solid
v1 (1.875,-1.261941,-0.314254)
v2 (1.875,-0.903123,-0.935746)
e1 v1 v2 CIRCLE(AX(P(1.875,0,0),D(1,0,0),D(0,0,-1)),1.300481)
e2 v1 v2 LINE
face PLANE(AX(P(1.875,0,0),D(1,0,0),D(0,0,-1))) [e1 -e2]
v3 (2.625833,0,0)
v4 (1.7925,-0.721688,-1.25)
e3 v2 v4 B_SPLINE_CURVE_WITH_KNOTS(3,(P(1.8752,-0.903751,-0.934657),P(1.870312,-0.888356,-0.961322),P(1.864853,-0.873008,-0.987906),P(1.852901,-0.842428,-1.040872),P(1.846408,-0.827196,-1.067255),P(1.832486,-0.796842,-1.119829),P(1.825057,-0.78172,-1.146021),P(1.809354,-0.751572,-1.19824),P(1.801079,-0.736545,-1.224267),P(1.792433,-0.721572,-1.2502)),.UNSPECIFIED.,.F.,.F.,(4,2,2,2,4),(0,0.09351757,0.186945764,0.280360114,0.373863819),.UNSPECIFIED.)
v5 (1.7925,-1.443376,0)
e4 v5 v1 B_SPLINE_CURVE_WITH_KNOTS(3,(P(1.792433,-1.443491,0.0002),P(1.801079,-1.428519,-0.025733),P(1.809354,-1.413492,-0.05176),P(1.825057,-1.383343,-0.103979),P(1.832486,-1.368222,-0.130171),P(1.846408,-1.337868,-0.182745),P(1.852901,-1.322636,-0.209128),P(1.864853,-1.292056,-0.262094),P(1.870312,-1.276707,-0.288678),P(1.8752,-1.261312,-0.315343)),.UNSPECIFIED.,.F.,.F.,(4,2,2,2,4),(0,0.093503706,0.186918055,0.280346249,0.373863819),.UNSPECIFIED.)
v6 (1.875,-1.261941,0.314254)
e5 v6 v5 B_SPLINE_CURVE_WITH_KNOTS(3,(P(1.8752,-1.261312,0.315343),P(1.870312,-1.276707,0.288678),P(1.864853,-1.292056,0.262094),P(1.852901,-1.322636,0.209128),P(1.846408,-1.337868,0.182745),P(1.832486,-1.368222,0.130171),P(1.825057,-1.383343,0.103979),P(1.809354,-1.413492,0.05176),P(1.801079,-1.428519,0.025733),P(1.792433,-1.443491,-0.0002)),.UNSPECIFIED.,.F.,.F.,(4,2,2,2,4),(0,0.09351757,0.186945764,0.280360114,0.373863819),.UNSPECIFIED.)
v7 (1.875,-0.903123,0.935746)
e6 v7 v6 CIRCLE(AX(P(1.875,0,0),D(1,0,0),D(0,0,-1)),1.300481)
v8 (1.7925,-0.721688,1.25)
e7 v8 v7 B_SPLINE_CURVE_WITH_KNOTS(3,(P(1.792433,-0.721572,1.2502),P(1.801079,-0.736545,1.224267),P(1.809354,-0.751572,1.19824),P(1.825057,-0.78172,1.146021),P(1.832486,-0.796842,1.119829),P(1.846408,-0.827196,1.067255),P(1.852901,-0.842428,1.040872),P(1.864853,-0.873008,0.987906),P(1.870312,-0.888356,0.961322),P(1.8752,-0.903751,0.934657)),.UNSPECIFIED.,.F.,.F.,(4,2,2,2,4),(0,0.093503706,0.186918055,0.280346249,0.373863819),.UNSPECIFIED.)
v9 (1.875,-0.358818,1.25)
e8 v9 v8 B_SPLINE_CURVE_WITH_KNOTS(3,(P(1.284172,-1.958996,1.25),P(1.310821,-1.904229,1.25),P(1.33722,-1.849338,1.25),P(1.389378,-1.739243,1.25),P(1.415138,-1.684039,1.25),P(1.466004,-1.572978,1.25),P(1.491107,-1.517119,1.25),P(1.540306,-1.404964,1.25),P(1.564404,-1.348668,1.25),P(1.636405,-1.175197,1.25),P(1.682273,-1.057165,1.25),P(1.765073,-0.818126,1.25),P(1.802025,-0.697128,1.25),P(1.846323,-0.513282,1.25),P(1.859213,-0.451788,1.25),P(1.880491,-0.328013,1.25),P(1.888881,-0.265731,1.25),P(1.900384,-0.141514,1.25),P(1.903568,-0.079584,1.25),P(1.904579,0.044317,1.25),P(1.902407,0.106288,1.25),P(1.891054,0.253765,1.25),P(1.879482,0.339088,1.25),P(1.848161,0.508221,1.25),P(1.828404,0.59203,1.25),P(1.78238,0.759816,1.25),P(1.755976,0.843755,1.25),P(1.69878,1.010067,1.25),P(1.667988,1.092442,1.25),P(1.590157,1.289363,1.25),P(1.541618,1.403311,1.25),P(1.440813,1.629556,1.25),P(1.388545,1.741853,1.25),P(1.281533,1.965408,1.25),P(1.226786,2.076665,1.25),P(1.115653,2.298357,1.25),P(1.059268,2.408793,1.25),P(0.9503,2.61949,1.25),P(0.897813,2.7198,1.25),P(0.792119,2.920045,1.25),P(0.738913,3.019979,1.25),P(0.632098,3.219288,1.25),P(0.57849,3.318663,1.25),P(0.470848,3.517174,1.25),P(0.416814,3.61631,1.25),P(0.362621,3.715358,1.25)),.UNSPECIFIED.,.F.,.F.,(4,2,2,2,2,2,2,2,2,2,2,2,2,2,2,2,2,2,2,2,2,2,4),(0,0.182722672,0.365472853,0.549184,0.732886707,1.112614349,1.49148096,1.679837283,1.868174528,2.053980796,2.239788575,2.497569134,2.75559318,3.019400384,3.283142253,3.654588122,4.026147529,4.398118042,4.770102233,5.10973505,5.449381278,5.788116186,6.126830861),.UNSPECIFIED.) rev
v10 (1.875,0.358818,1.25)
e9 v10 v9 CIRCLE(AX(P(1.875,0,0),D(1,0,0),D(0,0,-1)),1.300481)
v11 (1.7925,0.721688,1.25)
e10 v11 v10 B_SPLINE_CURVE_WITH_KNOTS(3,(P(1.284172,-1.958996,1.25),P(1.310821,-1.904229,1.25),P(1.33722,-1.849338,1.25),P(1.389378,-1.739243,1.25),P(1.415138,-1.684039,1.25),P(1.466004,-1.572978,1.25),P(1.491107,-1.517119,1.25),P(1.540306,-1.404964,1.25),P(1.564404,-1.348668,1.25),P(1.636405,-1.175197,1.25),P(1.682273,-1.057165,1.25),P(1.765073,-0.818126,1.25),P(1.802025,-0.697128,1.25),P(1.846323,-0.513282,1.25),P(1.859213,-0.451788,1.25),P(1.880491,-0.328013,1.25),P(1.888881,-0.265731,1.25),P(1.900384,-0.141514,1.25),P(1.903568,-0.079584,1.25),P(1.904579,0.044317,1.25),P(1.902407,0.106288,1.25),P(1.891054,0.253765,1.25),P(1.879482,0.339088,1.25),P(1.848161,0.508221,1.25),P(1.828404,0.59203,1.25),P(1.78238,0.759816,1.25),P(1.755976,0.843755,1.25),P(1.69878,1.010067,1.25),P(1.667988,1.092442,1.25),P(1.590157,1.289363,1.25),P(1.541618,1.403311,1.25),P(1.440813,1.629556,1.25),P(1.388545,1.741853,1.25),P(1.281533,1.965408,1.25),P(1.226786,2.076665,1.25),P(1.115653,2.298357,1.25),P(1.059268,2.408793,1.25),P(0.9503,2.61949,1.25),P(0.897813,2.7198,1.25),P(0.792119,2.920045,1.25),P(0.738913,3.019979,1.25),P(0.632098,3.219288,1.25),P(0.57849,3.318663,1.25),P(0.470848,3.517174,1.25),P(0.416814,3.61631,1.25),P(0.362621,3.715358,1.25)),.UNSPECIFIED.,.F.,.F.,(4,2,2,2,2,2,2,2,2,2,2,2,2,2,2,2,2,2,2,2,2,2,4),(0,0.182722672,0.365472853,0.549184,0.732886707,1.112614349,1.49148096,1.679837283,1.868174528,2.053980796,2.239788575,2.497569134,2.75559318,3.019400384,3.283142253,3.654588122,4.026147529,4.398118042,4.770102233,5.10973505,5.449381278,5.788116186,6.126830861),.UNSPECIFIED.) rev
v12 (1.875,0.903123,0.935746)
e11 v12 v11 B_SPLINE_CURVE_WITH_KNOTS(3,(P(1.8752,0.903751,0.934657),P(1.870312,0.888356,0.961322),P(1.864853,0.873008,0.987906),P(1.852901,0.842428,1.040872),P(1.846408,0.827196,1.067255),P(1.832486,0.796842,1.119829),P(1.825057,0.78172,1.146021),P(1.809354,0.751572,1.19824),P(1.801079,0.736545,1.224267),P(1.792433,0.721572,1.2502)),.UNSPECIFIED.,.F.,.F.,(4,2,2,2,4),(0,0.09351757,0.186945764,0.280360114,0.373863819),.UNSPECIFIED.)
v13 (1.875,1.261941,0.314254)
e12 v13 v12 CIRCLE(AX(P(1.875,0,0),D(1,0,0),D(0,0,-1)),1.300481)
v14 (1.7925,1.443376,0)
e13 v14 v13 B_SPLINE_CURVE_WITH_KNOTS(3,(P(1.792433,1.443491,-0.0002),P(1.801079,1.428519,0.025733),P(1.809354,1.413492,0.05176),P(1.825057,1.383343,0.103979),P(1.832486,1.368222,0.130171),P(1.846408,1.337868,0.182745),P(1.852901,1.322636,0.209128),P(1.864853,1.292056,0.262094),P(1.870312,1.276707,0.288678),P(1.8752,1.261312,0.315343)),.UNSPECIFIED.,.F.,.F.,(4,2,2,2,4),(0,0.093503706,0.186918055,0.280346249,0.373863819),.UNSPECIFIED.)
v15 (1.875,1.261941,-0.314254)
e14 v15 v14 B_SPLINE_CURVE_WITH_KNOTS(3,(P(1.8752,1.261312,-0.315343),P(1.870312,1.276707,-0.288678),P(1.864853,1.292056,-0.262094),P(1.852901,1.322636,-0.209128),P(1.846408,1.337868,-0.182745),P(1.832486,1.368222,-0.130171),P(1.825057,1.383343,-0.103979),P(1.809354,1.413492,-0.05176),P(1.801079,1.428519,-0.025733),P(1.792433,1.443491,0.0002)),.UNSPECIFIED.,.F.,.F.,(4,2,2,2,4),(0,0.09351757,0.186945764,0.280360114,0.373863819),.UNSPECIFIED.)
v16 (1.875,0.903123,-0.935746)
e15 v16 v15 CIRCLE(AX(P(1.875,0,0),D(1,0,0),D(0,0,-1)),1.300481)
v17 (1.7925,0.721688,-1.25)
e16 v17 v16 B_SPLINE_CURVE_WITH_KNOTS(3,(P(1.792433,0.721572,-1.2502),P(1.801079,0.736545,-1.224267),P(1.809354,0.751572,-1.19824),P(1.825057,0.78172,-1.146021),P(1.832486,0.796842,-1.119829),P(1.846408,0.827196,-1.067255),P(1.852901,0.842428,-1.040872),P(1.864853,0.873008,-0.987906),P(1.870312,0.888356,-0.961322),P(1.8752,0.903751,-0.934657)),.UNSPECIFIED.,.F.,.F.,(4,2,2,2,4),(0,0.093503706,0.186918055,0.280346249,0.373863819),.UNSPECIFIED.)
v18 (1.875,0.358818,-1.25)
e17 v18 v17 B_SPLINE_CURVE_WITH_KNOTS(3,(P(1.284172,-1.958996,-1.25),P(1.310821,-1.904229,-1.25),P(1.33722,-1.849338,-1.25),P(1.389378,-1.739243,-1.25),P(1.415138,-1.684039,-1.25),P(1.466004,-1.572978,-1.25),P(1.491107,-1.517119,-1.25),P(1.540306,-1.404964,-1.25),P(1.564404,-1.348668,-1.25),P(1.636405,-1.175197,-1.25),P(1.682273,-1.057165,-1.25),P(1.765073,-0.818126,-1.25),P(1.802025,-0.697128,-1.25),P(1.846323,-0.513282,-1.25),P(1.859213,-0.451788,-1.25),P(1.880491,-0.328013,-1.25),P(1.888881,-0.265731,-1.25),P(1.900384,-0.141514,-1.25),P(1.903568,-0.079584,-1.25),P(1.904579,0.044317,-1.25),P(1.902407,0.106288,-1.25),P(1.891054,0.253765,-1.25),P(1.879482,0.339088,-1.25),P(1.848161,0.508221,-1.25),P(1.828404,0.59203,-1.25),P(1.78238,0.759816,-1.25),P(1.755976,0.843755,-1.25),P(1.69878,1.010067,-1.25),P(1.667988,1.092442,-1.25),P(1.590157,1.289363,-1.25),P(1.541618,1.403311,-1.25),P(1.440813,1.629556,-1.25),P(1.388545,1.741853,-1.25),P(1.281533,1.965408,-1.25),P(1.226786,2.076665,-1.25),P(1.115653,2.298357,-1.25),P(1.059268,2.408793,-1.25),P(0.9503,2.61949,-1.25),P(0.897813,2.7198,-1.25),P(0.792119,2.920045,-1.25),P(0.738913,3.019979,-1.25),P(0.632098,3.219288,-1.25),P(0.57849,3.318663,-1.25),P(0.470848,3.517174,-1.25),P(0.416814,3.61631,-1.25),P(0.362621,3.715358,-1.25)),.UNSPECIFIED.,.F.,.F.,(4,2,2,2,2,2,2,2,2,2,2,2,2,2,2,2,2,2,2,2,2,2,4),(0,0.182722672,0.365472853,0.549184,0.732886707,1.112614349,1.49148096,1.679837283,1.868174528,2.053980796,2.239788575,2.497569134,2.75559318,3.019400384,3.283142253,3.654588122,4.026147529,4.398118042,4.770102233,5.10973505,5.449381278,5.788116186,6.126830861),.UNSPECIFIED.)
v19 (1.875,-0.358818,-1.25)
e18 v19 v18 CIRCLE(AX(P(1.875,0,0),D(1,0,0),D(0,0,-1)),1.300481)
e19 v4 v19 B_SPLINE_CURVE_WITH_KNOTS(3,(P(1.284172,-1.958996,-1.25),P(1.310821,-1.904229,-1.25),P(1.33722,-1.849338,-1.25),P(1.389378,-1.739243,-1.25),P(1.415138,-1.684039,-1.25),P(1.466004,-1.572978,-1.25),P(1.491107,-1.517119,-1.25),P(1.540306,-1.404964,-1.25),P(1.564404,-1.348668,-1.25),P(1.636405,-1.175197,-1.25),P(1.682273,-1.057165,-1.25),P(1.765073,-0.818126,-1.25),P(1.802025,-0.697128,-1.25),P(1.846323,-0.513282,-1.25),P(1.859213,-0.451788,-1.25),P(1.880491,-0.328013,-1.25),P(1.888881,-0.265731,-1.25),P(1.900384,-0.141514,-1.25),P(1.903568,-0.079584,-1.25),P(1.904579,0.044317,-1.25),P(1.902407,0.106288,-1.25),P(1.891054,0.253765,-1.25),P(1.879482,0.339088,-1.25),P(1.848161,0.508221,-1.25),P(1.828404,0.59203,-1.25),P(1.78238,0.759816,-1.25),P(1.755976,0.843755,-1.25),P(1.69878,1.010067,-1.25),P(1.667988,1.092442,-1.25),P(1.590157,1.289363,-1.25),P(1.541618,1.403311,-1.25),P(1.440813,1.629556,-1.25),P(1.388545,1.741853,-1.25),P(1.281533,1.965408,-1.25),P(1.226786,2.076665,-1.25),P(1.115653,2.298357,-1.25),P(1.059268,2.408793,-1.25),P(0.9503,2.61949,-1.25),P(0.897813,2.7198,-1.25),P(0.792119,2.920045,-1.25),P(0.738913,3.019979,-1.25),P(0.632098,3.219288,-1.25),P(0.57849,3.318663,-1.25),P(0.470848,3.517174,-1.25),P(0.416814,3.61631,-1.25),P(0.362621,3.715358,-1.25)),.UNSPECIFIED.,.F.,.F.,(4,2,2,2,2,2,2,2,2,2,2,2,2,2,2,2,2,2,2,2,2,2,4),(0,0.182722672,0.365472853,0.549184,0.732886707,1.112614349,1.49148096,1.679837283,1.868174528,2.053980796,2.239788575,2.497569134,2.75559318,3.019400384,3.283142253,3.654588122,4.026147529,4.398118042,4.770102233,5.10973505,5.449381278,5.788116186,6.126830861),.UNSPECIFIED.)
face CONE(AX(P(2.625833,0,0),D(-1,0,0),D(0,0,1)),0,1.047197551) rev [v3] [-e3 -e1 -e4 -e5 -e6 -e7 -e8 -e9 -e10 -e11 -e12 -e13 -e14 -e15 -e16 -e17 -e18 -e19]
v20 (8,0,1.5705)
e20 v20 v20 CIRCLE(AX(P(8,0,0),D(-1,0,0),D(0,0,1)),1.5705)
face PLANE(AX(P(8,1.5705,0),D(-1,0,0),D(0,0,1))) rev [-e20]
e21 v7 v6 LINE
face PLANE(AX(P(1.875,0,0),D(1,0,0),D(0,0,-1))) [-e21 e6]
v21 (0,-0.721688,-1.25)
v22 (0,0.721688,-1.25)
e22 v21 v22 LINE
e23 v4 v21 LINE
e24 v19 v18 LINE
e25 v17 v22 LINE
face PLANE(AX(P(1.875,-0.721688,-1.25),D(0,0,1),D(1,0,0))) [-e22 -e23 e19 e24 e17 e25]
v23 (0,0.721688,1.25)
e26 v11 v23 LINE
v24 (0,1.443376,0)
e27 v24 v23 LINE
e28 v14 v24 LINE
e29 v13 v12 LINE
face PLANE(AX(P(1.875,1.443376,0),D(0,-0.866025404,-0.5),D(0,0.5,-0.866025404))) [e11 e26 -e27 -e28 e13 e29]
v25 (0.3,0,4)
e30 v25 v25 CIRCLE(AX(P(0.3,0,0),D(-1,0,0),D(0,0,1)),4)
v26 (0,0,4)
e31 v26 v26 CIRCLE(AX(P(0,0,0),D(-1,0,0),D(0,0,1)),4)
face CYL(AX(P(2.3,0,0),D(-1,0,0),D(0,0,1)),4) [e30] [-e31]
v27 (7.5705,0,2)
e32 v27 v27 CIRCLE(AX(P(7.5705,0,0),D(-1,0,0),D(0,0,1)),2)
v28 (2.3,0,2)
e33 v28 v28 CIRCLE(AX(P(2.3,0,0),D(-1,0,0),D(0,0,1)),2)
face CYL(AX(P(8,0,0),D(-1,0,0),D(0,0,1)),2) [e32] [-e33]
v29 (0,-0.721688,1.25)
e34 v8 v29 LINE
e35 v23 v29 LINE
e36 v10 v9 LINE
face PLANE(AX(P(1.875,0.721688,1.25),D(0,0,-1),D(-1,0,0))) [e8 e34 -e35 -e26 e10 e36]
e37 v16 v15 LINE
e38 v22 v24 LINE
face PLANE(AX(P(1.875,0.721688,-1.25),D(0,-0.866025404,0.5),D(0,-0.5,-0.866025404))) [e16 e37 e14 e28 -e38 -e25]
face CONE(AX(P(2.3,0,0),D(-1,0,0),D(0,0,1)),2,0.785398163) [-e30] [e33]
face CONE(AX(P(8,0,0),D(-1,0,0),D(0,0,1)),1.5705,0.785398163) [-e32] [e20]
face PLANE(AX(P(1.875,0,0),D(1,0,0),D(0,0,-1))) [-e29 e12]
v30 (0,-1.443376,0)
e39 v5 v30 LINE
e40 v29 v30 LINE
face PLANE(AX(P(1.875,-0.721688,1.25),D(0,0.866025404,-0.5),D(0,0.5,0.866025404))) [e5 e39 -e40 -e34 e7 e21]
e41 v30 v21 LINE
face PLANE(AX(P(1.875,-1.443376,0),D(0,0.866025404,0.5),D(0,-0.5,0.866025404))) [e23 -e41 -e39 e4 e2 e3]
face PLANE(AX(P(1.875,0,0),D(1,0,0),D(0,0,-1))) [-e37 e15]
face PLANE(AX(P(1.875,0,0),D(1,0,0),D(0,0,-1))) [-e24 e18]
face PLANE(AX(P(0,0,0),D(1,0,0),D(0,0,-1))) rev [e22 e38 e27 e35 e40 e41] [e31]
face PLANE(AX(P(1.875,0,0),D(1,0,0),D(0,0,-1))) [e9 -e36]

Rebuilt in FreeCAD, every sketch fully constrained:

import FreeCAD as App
import Part
import Sketcher
Q = App.Units.Quantity


def add_polygon(sketch, points):
    """Adds a closed chain of lines whose ends are joined by coincident constraints."""
    first, n = sketch.GeometryCount, len(points)
    for a, b in zip(points, points[1:] + points[:1]):
        sketch.addGeometry(Part.LineSegment(App.Vector(*a, 0), App.Vector(*b, 0)), False)
    for i in range(n):
        sketch.addConstraint(Sketcher.Constraint("Coincident", first + i, 2, first + (i + 1) % n, 1))

doc = App.newDocument("Part")
body = doc.addObject("PartDesign::Body", "Body")

# Sketch on XY plane
sketch1 = doc.addObject("Sketcher::SketchObject", "Sketch")
body.addObject(sketch1)
sketch1.AttachmentSupport = (doc.XY_Plane, [""])
sketch1.MapMode = "FlatFace"
add_polygon(sketch1, [(0, 4), (0, 0), (2.3, 0), (2.3, 2), (0.3, 4)])  # lines 0-4
sketch1.addConstraint(Sketcher.Constraint("Vertical", 0))
sketch1.addConstraint(Sketcher.Constraint("Horizontal", 1))
sketch1.addConstraint(Sketcher.Constraint("Vertical", 2))
sketch1.addConstraint(Sketcher.Constraint("Horizontal", 4))
sketch1.addConstraint(Sketcher.Constraint("Coincident", 0, 2, -1, 1))
sketch1.addConstraint(Sketcher.Constraint("DistanceY", 0, 2, 0, 1, Q("4 mm")))
sketch1.addConstraint(Sketcher.Constraint("DistanceY", 2, 1, 2, 2, Q("2 mm")))
sketch1.addConstraint(Sketcher.Constraint("Angle", 3, Q("135 deg")))
sketch1.addConstraint(Sketcher.Constraint("DistanceX", 1, 1, 1, 2, Q("2.3 mm")))
revolution = doc.addObject("PartDesign::Revolution", "Revolution")
body.addObject(revolution)
revolution.Profile = sketch1
revolution.ReferenceAxis = (sketch1, ["H_Axis"])
revolution.Angle = 360

# Sketch on XY plane
sketch2 = doc.addObject("Sketcher::SketchObject", "Sketch001")
body.addObject(sketch2)
sketch2.AttachmentSupport = (doc.XY_Plane, [""])
sketch2.MapMode = "FlatFace"
add_polygon(sketch2, [(2.3, 2), (2.3, 0), (8, 0), (8, 1.6), (7.6, 2)])  # lines 0-4
sketch2.addConstraint(Sketcher.Constraint("Vertical", 0))
sketch2.addConstraint(Sketcher.Constraint("Horizontal", 1))
sketch2.addConstraint(Sketcher.Constraint("Vertical", 2))
sketch2.addConstraint(Sketcher.Constraint("Horizontal", 4))
sketch2.addConstraint(Sketcher.Constraint("PointOnObject", 0, 2, -1))
sketch2.addConstraint(Sketcher.Constraint("DistanceY", 0, 2, 0, 1, Q("2 mm")))
sketch2.addConstraint(Sketcher.Constraint("Angle", 3, Q("135 deg")))
sketch2.addConstraint(Sketcher.Constraint("DistanceX", 1, 1, 1, 2, Q("5.7 mm")))
sketch2.addConstraint(Sketcher.Constraint("DistanceX", -1, 1, 1, 2, Q("8 mm")))
sketch2.addConstraint(Sketcher.Constraint("DistanceX", 4, 2, 4, 1, Q("5.2705 mm")))
revolution2 = doc.addObject("PartDesign::Revolution", "Revolution001")
body.addObject(revolution2)
revolution2.Profile = sketch2
revolution2.ReferenceAxis = (sketch2, ["H_Axis"])
revolution2.Angle = 360

# Sketch on XY plane
sketch3 = doc.addObject("Sketcher::SketchObject", "Sketch002")
body.addObject(sketch3)
sketch3.AttachmentSupport = (doc.XY_Plane, [""])
sketch3.MapMode = "FlatFace"
add_polygon(sketch3, [(0, 1.9), (0, 0), (2.6, 0), (1.5, 1.9)])  # lines 0-3
sketch3.addConstraint(Sketcher.Constraint("Vertical", 0))
sketch3.addConstraint(Sketcher.Constraint("Horizontal", 1))
sketch3.addConstraint(Sketcher.Constraint("Horizontal", 3))
sketch3.addConstraint(Sketcher.Constraint("Coincident", 0, 2, -1, 1))
sketch3.addConstraint(Sketcher.Constraint("Angle", 2, Q("120 deg")))
sketch3.addConstraint(Sketcher.Constraint("DistanceX", 3, 2, 3, 1, Q("1.5 mm")))
sketch3.addConstraint(Sketcher.Constraint("DistanceY", 0, 2, 0, 1, Q("1.95 mm")))
groove = doc.addObject("PartDesign::Groove", "Groove")
body.addObject(groove)
groove.Profile = sketch3
groove.ReferenceAxis = (sketch3, ["H_Axis"])
groove.Angle = 360

# Sketch on YZ plane
sketch4 = doc.addObject("Sketcher::SketchObject", "Sketch003")
body.addObject(sketch4)
sketch4.AttachmentSupport = (doc.YZ_Plane, [""])
sketch4.MapMode = "FlatFace"
sketch4.addGeometry(Part.Circle(App.Vector(0, 0, 0), App.Vector(0, 0, 1), 2.2), False)  # 0
add_polygon(sketch4, [(-0.7, 1.2), (0.7, 1.2), (1.4, 0), (0.7, -1.2), (-0.7, -1.2), (-1.4, 0)])  # lines 1-6
sketch4.addConstraint(Sketcher.Constraint("Horizontal", 1))
sketch4.addConstraint(Sketcher.Constraint("Horizontal", 4))
sketch4.addConstraint(Sketcher.Constraint("Coincident", 0, 3, -1, 1))
sketch4.addConstraint(Sketcher.Constraint("Symmetric", 1, 2, 4, 2, -1, 1))
sketch4.addConstraint(Sketcher.Constraint("Symmetric", 2, 2, 5, 2, -1, 1))
sketch4.addConstraint(Sketcher.Constraint("PointOnObject", 2, 2, -1))
sketch4.addConstraint(Sketcher.Constraint("Parallel", 3, 6))
sketch4.addConstraint(Sketcher.Constraint("Vertical", 1, 2, 3, 2))
sketch4.addConstraint(Sketcher.Constraint("Diameter", 0, Q("4.5 mm")))
sketch4.addConstraint(Sketcher.Constraint("Angle", 2, Q("-60 deg")))
sketch4.addConstraint(Sketcher.Constraint("DistanceY", 3, 2, 1, 2, Q("2.5 mm")))
sketch4.addConstraint(Sketcher.Constraint("DistanceX", 1, 1, 1, 2, Q("1.443376 mm")))
pad1 = doc.addObject("PartDesign::Pad", "Pad")
body.addObject(pad1)
pad1.Profile = sketch4
pad1.Length = 1.875

doc.recompute()
